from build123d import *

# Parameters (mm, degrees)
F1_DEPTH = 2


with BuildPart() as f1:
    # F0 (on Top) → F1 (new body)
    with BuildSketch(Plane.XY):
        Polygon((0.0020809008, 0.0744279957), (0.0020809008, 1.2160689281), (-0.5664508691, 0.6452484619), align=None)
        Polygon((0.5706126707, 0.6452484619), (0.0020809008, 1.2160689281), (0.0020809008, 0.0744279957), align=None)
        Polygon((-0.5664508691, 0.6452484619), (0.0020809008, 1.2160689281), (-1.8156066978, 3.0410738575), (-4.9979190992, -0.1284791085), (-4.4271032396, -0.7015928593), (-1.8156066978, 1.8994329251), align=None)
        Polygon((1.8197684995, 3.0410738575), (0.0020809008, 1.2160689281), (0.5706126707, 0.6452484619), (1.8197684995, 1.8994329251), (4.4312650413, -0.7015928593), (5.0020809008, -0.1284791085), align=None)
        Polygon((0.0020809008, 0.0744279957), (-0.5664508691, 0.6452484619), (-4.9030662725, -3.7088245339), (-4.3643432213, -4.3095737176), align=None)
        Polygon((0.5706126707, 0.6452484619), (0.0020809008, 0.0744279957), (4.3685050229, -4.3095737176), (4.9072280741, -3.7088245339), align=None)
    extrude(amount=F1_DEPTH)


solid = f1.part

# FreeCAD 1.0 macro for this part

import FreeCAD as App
import Part
import Sketcher
from FreeCAD import Vector
Q = App.Units.Quantity

doc = App.newDocument("Part")
body = doc.addObject("PartDesign::Body", "Body")

# Sketch on XY plane
sketch1 = body.newObject("Sketcher::SketchObject", "Sketch")
sketch1.AttachmentSupport = (doc.getObject("XY_Plane"), [""])
sketch1.MapMode = "FlatFace"
sketch1.addGeometry([
    Part.LineSegment(Vector(0.6, 0.6, 0), Vector(1.8, 1.9, 0)),  # 0
    Part.LineSegment(Vector(1.8, 1.9, 0), Vector(4.4, -0.7, 0)),  # 1
    Part.LineSegment(Vector(4.4, -0.7, 0), Vector(5, -0.1, 0)),  # 2
    Part.LineSegment(Vector(5, -0.1, 0), Vector(1.8, 3, 0)),  # 3
    Part.LineSegment(Vector(1.8, 3, 0), Vector(0, 1.2, 0)),  # 4
    Part.LineSegment(Vector(0, 1.2, 0), Vector(-1.8, 3, 0)),  # 5
    Part.LineSegment(Vector(-1.8, 3, 0), Vector(-5, -0.1, 0)),  # 6
    Part.LineSegment(Vector(-5, -0.1, 0), Vector(-4.4, -0.7, 0)),  # 7
    Part.LineSegment(Vector(-4.4, -0.7, 0), Vector(-1.8, 1.9, 0)),  # 8
    Part.LineSegment(Vector(-1.8, 1.9, 0), Vector(-0.6, 0.6, 0)),  # 9
    Part.LineSegment(Vector(-0.6, 0.6, 0), Vector(-4.9, -3.7, 0)),  # 10
    Part.LineSegment(Vector(-4.9, -3.7, 0), Vector(-4.4, -4.3, 0)),  # 11
    Part.LineSegment(Vector(-4.4, -4.3, 0), Vector(0, 0.1, 0)),  # 12
    Part.LineSegment(Vector(0, 0.1, 0), Vector(4.4, -4.3, 0)),  # 13
    Part.LineSegment(Vector(4.4, -4.3, 0), Vector(4.9, -3.7, 0)),  # 14
    Part.LineSegment(Vector(4.9, -3.7, 0), Vector(0.6, 0.6, 0)),  # 15
], False)
sketch1.addConstraint([
    Sketcher.Constraint("Coincident", 0, 2, 1, 1),
    Sketcher.Constraint("Coincident", 1, 2, 2, 1),
    Sketcher.Constraint("Coincident", 2, 2, 3, 1),
    Sketcher.Constraint("Coincident", 3, 2, 4, 1),
    Sketcher.Constraint("Coincident", 4, 2, 5, 1),
    Sketcher.Constraint("Coincident", 5, 2, 6, 1),
    Sketcher.Constraint("Coincident", 6, 2, 7, 1),
    Sketcher.Constraint("Coincident", 7, 2, 8, 1),
    Sketcher.Constraint("Coincident", 8, 2, 9, 1),
    Sketcher.Constraint("Coincident", 9, 2, 10, 1),
    Sketcher.Constraint("Coincident", 10, 2, 11, 1),
    Sketcher.Constraint("Coincident", 11, 2, 12, 1),
    Sketcher.Constraint("Coincident", 12, 2, 13, 1),
    Sketcher.Constraint("Coincident", 13, 2, 14, 1),
    Sketcher.Constraint("Coincident", 14, 2, 15, 1),
    Sketcher.Constraint("Coincident", 15, 2, 0, 1),
    Sketcher.Constraint("Perpendicular", 0, 1),
    Sketcher.Constraint("Perpendicular", 1, 2),
    Sketcher.Constraint("Perpendicular", 2, 3),
    Sketcher.Constraint("Perpendicular", 3, 4),
    Sketcher.Constraint("Perpendicular", 5, 6),
    Sketcher.Constraint("Perpendicular", 6, 7),
    Sketcher.Constraint("Perpendicular", 7, 8),
    Sketcher.Constraint("Perpendicular", 8, 9),
    Sketcher.Constraint("Parallel", 4, 10),
    Sketcher.Constraint("Parallel", 10, 12),
    Sketcher.Constraint("Parallel", 9, 13),
    Sketcher.Constraint("Parallel", 13, 15),
    Sketcher.Constraint("Horizontal", 3, 2, 5, 2),
    Sketcher.Constraint("Horizontal", 2, 2, 6, 2),
    Sketcher.Constraint("Horizontal", 1, 2, 7, 2),
    Sketcher.Constraint("Horizontal", 0, 2, 8, 2),
    Sketcher.Constraint("Horizontal", 11, 2, 13, 2),
    Sketcher.Constraint("Horizontal", 10, 2, 14, 2),
    Sketcher.Constraint("Horizontal", 9, 2, 15, 2),
    Sketcher.Constraint("Vertical", 0, 2, 3, 2),
    Sketcher.Constraint("Vertical", 5, 2, 8, 2),
    Sketcher.Constraint("Vertical", 4, 2, 12, 2),
    Sketcher.Constraint("DistanceX", 4, 2, 2, 2, Q("5 mm")),
    Sketcher.Constraint("DistanceY", 13, 2, 12, 2, Q("4.384002 mm")),
    Sketcher.Constraint("Distance", 11, Q("0.806921 mm")),
    Sketcher.Constraint("DistanceX", -1, 1, 0, 2, Q("1.819768 mm")),
    Sketcher.Constraint("DistanceX", -1, 1, 2, 2, Q("5.002081 mm")),
    Sketcher.Constraint("DistanceY", 2, 2, -1, 1, Q("0.128479 mm")),
    Sketcher.Constraint("DistanceY", -1, 1, 4, 2, Q("1.216069 mm")),
    Sketcher.Constraint("DistanceX", 9, 2, -1, 1, Q("0.566451 mm")),
    Sketcher.Constraint("DistanceY", -1, 1, 9, 2, Q("0.645248 mm")),
    Sketcher.Constraint("DistanceX", -1, 1, 14, 2, Q("4.907228 mm")),
])
pad1 = body.newObject("PartDesign::Pad", "Pad")
pad1.Profile = sketch1
pad1.Length = 2

doc.recompute()
